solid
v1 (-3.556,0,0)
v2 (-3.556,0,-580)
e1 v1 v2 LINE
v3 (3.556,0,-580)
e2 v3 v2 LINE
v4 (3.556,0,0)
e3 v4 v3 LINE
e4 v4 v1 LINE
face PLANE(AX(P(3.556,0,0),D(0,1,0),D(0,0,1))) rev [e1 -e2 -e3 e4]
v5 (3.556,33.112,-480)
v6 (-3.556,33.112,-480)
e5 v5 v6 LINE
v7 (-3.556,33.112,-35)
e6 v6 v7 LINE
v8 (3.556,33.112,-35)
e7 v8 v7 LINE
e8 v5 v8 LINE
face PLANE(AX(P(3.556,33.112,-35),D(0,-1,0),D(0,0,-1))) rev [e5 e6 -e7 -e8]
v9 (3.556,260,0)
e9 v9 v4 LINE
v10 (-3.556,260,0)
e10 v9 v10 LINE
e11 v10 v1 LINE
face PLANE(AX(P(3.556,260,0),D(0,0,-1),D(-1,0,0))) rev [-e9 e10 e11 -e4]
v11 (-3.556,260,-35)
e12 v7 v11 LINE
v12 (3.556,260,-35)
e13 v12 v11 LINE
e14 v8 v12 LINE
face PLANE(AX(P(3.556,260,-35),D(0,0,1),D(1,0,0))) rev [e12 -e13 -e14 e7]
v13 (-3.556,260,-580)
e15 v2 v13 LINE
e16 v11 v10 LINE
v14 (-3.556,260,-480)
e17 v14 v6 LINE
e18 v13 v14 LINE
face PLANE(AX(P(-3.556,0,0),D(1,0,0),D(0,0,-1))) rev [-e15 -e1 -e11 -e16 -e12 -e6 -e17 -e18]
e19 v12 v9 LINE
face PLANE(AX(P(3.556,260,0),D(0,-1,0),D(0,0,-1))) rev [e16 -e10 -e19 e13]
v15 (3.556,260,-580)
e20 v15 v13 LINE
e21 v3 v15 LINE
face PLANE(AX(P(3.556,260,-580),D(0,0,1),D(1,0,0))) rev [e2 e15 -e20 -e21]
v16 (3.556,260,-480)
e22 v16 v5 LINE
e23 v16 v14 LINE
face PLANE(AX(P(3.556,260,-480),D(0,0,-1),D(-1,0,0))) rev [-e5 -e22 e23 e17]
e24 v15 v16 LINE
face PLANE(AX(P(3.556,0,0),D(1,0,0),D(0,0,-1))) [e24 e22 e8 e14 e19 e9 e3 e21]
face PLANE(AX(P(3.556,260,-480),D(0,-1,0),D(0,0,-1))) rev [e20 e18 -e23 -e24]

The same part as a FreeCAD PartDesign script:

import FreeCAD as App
import Part
import Sketcher
Q = App.Units.Quantity

doc = App.newDocument("Part")
body = doc.addObject("PartDesign::Body", "Body")

# Sketch on YZ plane
sketch1 = body.newObject("Sketcher::SketchObject", "Sketch")
sketch1.AttachmentSupport = (doc.getObject("YZ_Plane"), [""])
sketch1.MapMode = "FlatFace"
sketch1.addGeometry(Part.LineSegment(App.Vector(260, -580, 0), App.Vector(260, -480, 0)), False)
sketch1.addGeometry(Part.LineSegment(App.Vector(260, -480, 0), App.Vector(33, -480, 0)), False)
sketch1.addGeometry(Part.LineSegment(App.Vector(33, -480, 0), App.Vector(33, -35, 0)), False)
sketch1.addGeometry(Part.LineSegment(App.Vector(33, -35, 0), App.Vector(260, -35, 0)), False)
sketch1.addGeometry(Part.LineSegment(App.Vector(260, -35, 0), App.Vector(260, 0, 0)), False)
sketch1.addGeometry(Part.LineSegment(App.Vector(260, 0, 0), App.Vector(0, 0, 0)), False)
sketch1.addGeometry(Part.LineSegment(App.Vector(0, 0, 0), App.Vector(0, -580, 0)), False)
sketch1.addGeometry(Part.LineSegment(App.Vector(0, -580, 0), App.Vector(260, -580, 0)), False)
sketch1.addConstraint(Sketcher.Constraint("Coincident", 0, 2, 1, 1))
sketch1.addConstraint(Sketcher.Constraint("Coincident", 1, 2, 2, 1))
sketch1.addConstraint(Sketcher.Constraint("Coincident", 2, 2, 3, 1))
sketch1.addConstraint(Sketcher.Constraint("Coincident", 3, 2, 4, 1))
sketch1.addConstraint(Sketcher.Constraint("Coincident", 4, 2, 5, 1))
sketch1.addConstraint(Sketcher.Constraint("Coincident", 5, 2, 6, 1))
sketch1.addConstraint(Sketcher.Constraint("Coincident", 6, 2, 7, 1))
sketch1.addConstraint(Sketcher.Constraint("Coincident", 7, 2, 0, 1))
sketch1.addConstraint(Sketcher.Constraint("Vertical", 0))
sketch1.addConstraint(Sketcher.Constraint("Horizontal", 1))
sketch1.addConstraint(Sketcher.Constraint("Vertical", 2))
sketch1.addConstraint(Sketcher.Constraint("Horizontal", 3))
sketch1.addConstraint(Sketcher.Constraint("Vertical", 4))
sketch1.addConstraint(Sketcher.Constraint("Horizontal", 5))
sketch1.addConstraint(Sketcher.Constraint("Vertical", 6))
sketch1.addConstraint(Sketcher.Constraint("Horizontal", 7))
sketch1.addConstraint(Sketcher.Constraint("Coincident", 5, 2, -1, 1))
sketch1.addConstraint(Sketcher.Constraint("Vertical", 0, 2, 3, 2))
sketch1.addConstraint(Sketcher.Constraint("DistanceX", 5, 2, 5, 1, Q("260 mm")))
sketch1.addConstraint(Sketcher.Constraint("DistanceY", 0, 1, 0, 2, Q("100 mm")))
sketch1.addConstraint(Sketcher.Constraint("DistanceY", 2, 1, 2, 2, Q("445 mm")))
sketch1.addConstraint(Sketcher.Constraint("DistanceY", 4, 1, 4, 2, Q("35 mm")))
sketch1.addConstraint(Sketcher.Constraint("DistanceX", 1, 2, 1, 1, Q("226.888 mm")))
pad1 = body.newObject("PartDesign::Pad", "Pad")
pad1.Profile = sketch1
pad1.Length = 7.112
pad1.Midplane = True

doc.recompute()
